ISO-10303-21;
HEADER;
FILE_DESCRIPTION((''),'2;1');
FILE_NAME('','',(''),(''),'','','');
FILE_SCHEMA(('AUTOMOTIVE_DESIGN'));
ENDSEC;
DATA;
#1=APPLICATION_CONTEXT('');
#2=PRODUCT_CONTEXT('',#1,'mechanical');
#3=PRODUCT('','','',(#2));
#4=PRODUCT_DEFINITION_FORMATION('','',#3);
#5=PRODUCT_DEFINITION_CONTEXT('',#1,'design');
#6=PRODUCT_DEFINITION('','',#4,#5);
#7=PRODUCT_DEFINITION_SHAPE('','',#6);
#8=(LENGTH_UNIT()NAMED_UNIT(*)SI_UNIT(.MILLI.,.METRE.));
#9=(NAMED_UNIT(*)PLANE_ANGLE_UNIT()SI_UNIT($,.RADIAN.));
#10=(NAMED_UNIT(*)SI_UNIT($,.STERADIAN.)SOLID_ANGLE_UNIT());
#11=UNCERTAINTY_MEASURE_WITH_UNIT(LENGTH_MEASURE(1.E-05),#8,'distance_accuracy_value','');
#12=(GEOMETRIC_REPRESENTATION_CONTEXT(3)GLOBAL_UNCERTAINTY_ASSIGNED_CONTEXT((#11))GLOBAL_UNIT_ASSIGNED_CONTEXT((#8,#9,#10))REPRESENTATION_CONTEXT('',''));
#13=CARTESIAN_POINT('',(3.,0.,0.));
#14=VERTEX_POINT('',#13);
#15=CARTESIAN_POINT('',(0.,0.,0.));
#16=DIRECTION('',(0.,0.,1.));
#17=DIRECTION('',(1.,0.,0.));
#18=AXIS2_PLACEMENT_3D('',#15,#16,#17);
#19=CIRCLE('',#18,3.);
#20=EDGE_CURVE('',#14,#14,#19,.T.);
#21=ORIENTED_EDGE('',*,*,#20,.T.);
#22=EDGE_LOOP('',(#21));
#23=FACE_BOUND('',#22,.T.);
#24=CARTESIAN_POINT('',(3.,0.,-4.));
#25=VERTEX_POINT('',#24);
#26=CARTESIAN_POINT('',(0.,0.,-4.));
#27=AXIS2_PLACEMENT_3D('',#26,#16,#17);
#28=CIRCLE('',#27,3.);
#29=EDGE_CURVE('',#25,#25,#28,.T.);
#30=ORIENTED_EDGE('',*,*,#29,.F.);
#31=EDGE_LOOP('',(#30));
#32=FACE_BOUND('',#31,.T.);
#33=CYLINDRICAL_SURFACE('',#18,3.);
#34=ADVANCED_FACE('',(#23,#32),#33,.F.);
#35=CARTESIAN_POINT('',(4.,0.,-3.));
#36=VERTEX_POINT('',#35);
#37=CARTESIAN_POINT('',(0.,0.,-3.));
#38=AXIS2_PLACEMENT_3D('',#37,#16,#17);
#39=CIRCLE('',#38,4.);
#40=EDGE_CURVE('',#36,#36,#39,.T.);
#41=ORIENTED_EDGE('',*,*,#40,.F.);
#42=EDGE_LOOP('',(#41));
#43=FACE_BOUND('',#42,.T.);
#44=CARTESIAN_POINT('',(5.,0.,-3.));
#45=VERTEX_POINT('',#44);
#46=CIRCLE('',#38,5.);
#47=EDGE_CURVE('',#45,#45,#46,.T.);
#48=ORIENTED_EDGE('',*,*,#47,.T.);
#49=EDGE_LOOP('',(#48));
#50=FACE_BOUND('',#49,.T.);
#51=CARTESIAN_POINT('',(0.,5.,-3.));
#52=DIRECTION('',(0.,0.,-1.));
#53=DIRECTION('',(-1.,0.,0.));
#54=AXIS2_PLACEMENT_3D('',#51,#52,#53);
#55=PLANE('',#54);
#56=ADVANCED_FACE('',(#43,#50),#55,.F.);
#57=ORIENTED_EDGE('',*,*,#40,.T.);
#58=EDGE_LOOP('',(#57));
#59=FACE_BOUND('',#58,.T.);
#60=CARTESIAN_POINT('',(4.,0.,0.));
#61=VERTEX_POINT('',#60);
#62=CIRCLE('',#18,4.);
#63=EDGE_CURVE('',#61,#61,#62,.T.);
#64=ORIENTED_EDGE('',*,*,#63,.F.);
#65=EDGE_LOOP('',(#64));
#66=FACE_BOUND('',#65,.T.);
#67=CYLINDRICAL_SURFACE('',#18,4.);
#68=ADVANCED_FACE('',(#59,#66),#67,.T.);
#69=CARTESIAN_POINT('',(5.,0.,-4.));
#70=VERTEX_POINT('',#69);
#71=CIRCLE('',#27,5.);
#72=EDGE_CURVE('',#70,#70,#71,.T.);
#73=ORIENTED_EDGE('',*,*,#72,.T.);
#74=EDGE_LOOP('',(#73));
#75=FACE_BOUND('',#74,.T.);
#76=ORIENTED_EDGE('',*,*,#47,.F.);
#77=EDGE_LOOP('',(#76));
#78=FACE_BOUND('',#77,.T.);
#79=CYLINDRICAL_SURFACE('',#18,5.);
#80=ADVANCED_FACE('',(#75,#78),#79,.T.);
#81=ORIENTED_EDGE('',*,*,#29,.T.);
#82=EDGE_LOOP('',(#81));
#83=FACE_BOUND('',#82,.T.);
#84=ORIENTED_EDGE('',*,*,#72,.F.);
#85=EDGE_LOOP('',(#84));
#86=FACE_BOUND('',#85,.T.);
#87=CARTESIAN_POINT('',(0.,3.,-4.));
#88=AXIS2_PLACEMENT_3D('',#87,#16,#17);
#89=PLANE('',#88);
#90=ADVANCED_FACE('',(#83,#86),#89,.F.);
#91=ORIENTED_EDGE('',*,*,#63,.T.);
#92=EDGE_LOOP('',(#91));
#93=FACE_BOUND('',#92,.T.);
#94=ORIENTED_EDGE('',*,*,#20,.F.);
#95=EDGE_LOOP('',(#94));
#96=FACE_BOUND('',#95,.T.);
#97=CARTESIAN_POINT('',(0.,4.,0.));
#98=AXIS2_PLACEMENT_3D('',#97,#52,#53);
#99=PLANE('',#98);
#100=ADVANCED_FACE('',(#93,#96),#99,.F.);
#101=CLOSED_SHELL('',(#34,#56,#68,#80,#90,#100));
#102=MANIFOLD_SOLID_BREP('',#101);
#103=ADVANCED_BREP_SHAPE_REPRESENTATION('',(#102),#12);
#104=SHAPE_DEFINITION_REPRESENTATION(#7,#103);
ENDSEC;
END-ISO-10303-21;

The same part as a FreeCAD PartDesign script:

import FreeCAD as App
import Part
import Sketcher

V = App.Vector
Q = App.Units.Quantity


def add_polygon(sketch, points):
    """Adds a closed chain of lines whose ends are joined by coincident constraints."""
    first, n = sketch.GeometryCount, len(points)
    for a, b in zip(points, points[1:] + points[:1]):
        sketch.addGeometry(Part.LineSegment(App.Vector(*a, 0), App.Vector(*b, 0)), False)
    for i in range(n):
        sketch.addConstraint(Sketcher.Constraint("Coincident", first + i, 2, first + (i + 1) % n, 1))

doc = App.newDocument("Part")
body = doc.addObject("PartDesign::Body", "Body")

sketch1 = body.newObject("Sketcher::SketchObject", "Sketch")
sketch1.AttachmentSupport = (doc.getObject("YZ_Plane"), [""])
sketch1.MapMode = "FlatFace"
add_polygon(sketch1, [(3, 0), (3, -4), (5, -4), (5, -3), (4, -3), (4, 0)])
sketch1.addConstraint([
    Sketcher.Constraint("Vertical", 0),
    Sketcher.Constraint("Horizontal", 1),
    Sketcher.Constraint("Vertical", 2),
    Sketcher.Constraint("Horizontal", 3),
    Sketcher.Constraint("Vertical", 4),
    Sketcher.Constraint("Horizontal", 5),
    Sketcher.Constraint("PointOnObject", 4, 2, -1),
    Sketcher.Constraint("Equal", 3, 5),
    Sketcher.Constraint("Equal", 5, 2),
    Sketcher.Constraint("DistanceX", 1, 1, 1, 2, Q("2 mm")),
    Sketcher.Constraint("DistanceY", 0, 2, 0, 1, Q("4 mm")),
    Sketcher.Constraint("DistanceX", -1, 1, 0, 2, Q("3 mm")),
])
revolution = body.newObject("PartDesign::Revolution", "Revolution")
revolution.Profile = sketch1
revolution.ReferenceAxis = (sketch1, ["V_Axis"])
revolution.Angle = 360

doc.recompute()
